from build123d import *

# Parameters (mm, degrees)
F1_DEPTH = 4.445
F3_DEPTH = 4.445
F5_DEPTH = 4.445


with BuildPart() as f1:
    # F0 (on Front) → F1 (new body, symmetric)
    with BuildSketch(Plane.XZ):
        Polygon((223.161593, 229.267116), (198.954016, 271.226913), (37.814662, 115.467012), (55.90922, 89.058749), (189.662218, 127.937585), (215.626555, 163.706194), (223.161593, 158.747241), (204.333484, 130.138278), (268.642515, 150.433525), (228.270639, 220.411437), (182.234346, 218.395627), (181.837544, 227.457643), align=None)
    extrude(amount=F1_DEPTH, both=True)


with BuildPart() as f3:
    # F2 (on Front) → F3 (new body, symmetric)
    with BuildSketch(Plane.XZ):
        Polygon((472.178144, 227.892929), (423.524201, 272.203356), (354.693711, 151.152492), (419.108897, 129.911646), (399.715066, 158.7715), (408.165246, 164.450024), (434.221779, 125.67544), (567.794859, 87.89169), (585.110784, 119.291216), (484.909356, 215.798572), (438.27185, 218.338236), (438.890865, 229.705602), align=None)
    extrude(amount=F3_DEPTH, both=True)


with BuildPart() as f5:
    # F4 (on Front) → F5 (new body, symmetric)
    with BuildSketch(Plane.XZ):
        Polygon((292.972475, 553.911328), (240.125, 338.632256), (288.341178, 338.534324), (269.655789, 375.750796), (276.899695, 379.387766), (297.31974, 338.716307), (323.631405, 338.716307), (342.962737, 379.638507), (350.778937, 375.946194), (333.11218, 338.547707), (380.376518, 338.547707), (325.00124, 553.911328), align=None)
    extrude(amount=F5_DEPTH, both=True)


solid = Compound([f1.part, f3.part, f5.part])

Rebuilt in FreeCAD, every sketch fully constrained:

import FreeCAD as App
import Part
import Sketcher
from FreeCAD import Vector
Q = App.Units.Quantity

doc = App.newDocument("Part")
body = doc.addObject("PartDesign::Body", "Body")

sketch1 = body.newObject("Sketcher::SketchObject", "Sketch")
sketch1.AttachmentSupport = (doc.getObject("XZ_Plane"), [""])
sketch1.MapMode = "FlatFace"
sketch1.addGeometry(Part.LineSegment(Vector(223.161593, 229.267116, 0), Vector(198.954016, 271.226913, 0)), False)
sketch1.addGeometry(Part.LineSegment(Vector(198.954016, 271.226913, 0), Vector(37.814662, 115.467012, 0)), False)
sketch1.addGeometry(Part.LineSegment(Vector(37.814662, 115.467012, 0), Vector(55.90922, 89.058749, 0)), False)
sketch1.addGeometry(Part.LineSegment(Vector(55.90922, 89.058749, 0), Vector(189.662218, 127.937585, 0)), False)
sketch1.addGeometry(Part.LineSegment(Vector(189.662218, 127.937585, 0), Vector(215.626555, 163.706194, 0)), False)
sketch1.addGeometry(Part.LineSegment(Vector(215.626555, 163.706194, 0), Vector(223.161593, 158.747241, 0)), False)
sketch1.addGeometry(Part.LineSegment(Vector(223.161593, 158.747241, 0), Vector(204.333484, 130.138278, 0)), False)
sketch1.addGeometry(Part.LineSegment(Vector(204.333484, 130.138278, 0), Vector(268.642515, 150.433525, 0)), False)
sketch1.addGeometry(Part.LineSegment(Vector(268.642515, 150.433525, 0), Vector(228.270639, 220.411437, 0)), False)
sketch1.addGeometry(Part.LineSegment(Vector(228.270639, 220.411437, 0), Vector(182.234346, 218.395627, 0)), False)
sketch1.addGeometry(Part.LineSegment(Vector(182.234346, 218.395627, 0), Vector(181.837544, 227.457643, 0)), False)
sketch1.addGeometry(Part.LineSegment(Vector(181.837544, 227.457643, 0), Vector(223.161593, 229.267116, 0)), False)
sketch1.addConstraint(Sketcher.Constraint("Coincident", 0, 2, 1, 1))
sketch1.addConstraint(Sketcher.Constraint("Coincident", 1, 2, 2, 1))
sketch1.addConstraint(Sketcher.Constraint("Coincident", 2, 2, 3, 1))
sketch1.addConstraint(Sketcher.Constraint("Coincident", 3, 2, 4, 1))
sketch1.addConstraint(Sketcher.Constraint("Coincident", 4, 2, 5, 1))
sketch1.addConstraint(Sketcher.Constraint("Coincident", 5, 2, 6, 1))
sketch1.addConstraint(Sketcher.Constraint("Coincident", 6, 2, 7, 1))
sketch1.addConstraint(Sketcher.Constraint("Coincident", 7, 2, 8, 1))
sketch1.addConstraint(Sketcher.Constraint("Coincident", 8, 2, 9, 1))
sketch1.addConstraint(Sketcher.Constraint("Coincident", 9, 2, 10, 1))
sketch1.addConstraint(Sketcher.Constraint("Coincident", 10, 2, 11, 1))
sketch1.addConstraint(Sketcher.Constraint("Coincident", 11, 2, 0, 1))
sketch1.addConstraint(Sketcher.Constraint("Perpendicular", 5, 6))
sketch1.addConstraint(Sketcher.Constraint("Parallel", 0, 8))
sketch1.addConstraint(Sketcher.Constraint("Perpendicular", 9, 10))
sketch1.addConstraint(Sketcher.Constraint("Perpendicular", 10, 11))
sketch1.addConstraint(Sketcher.Constraint("Vertical", 5, 2, 11, 2))
sketch1.addConstraint(Sketcher.Constraint("Distance", 10, 9.070699))
sketch1.addConstraint(Sketcher.Constraint("DistanceY", 1, 2, 0, 2, 155.759901))
sketch1.addConstraint(Sketcher.Constraint("DistanceX", 2, 2, 3, 2, 133.752998))
sketch1.addConstraint(Sketcher.Constraint("DistanceX", 0, 2, 7, 2, 69.688499))
sketch1.addConstraint(Sketcher.Constraint("DistanceX", 10, 2, 9, 2, 0.396802))
sketch1.addConstraint(Sketcher.Constraint("DistanceY", 5, 2, 10, 2, 68.710402))
sketch1.addConstraint(Sketcher.Constraint("Distance", 0, 48.442041))
sketch1.addConstraint(Sketcher.Constraint("Distance", 3, 139.28901))
sketch1.addConstraint(Sketcher.Constraint("Distance", 4, 44.198871))
sketch1.addConstraint(Sketcher.Constraint("Distance", 5, 9.020422))
sketch1.addConstraint(Sketcher.Constraint("Distance", 8, 80.788592))
sketch1.addConstraint(Sketcher.Constraint("DistanceX", -1, 1, 1, 2, 37.814662))
sketch1.addConstraint(Sketcher.Constraint("DistanceY", -1, 1, 1, 2, 115.467012))
sketch1.addConstraint(Sketcher.Constraint("DistanceX", -1, 1, 2, 2, 55.90922))
sketch1.addConstraint(Sketcher.Constraint("DistanceY", -1, 1, 2, 2, 89.058749))
sketch1.addConstraint(Sketcher.Constraint("DistanceY", -1, 1, 5, 2, 158.747241))
sketch1.addConstraint(Sketcher.Constraint("DistanceY", -1, 1, 6, 2, 130.138278))
sketch1.addConstraint(Sketcher.Constraint("DistanceX", -1, 1, 8, 2, 228.270639))
sketch1.addConstraint(Sketcher.Constraint("DistanceY", 3, 2, 4, 2, 35.768609))
pad1 = body.newObject("PartDesign::Pad", "Pad")
pad1.Profile = sketch1
pad1.Length = Q("0.35 in")
pad1.Midplane = True
body2 = doc.addObject("PartDesign::Body", "Body001")

sketch2 = body2.newObject("Sketcher::SketchObject", "Sketch001")
sketch2.AttachmentSupport = (doc.getObject("XZ_Plane001"), [""])
sketch2.MapMode = "FlatFace"
sketch2.addGeometry(Part.LineSegment(Vector(472.178144, 227.892929, 0), Vector(423.524201, 272.203356, 0)), False)
sketch2.addGeometry(Part.LineSegment(Vector(423.524201, 272.203356, 0), Vector(354.693711, 151.152492, 0)), False)
sketch2.addGeometry(Part.LineSegment(Vector(354.693711, 151.152492, 0), Vector(419.108897, 129.911646, 0)), False)
sketch2.addGeometry(Part.LineSegment(Vector(419.108897, 129.911646, 0), Vector(399.715066, 158.7715, 0)), False)
sketch2.addGeometry(Part.LineSegment(Vector(399.715066, 158.7715, 0), Vector(408.165246, 164.450024, 0)), False)
sketch2.addGeometry(Part.LineSegment(Vector(408.165246, 164.450024, 0), Vector(434.221779, 125.67544, 0)), False)
sketch2.addGeometry(Part.LineSegment(Vector(434.221779, 125.67544, 0), Vector(567.794859, 87.89169, 0)), False)
sketch2.addGeometry(Part.LineSegment(Vector(567.794859, 87.89169, 0), Vector(585.110784, 119.291216, 0)), False)
sketch2.addGeometry(Part.LineSegment(Vector(585.110784, 119.291216, 0), Vector(484.909356, 215.798572, 0)), False)
sketch2.addGeometry(Part.LineSegment(Vector(484.909356, 215.798572, 0), Vector(438.27185, 218.338236, 0)), False)
sketch2.addGeometry(Part.LineSegment(Vector(438.27185, 218.338236, 0), Vector(438.890865, 229.705602, 0)), False)
sketch2.addGeometry(Part.LineSegment(Vector(438.890865, 229.705602, 0), Vector(472.178144, 227.892929, 0)), False)
sketch2.addConstraint(Sketcher.Constraint("Coincident", 0, 2, 1, 1))
sketch2.addConstraint(Sketcher.Constraint("Coincident", 1, 2, 2, 1))
sketch2.addConstraint(Sketcher.Constraint("Coincident", 2, 2, 3, 1))
sketch2.addConstraint(Sketcher.Constraint("Coincident", 3, 2, 4, 1))
sketch2.addConstraint(Sketcher.Constraint("Coincident", 4, 2, 5, 1))
sketch2.addConstraint(Sketcher.Constraint("Coincident", 5, 2, 6, 1))
sketch2.addConstraint(Sketcher.Constraint("Coincident", 6, 2, 7, 1))
sketch2.addConstraint(Sketcher.Constraint("Coincident", 7, 2, 8, 1))
sketch2.addConstraint(Sketcher.Constraint("Coincident", 8, 2, 9, 1))
sketch2.addConstraint(Sketcher.Constraint("Coincident", 9, 2, 10, 1))
sketch2.addConstraint(Sketcher.Constraint("Coincident", 10, 2, 11, 1))
sketch2.addConstraint(Sketcher.Constraint("Coincident", 11, 2, 0, 1))
sketch2.addConstraint(Sketcher.Constraint("Perpendicular", 3, 4))
sketch2.addConstraint(Sketcher.Constraint("Perpendicular", 4, 5))
sketch2.addConstraint(Sketcher.Constraint("Perpendicular", 9, 10))
sketch2.addConstraint(Sketcher.Constraint("Perpendicular", 10, 11))
sketch2.addConstraint(Sketcher.Constraint("DistanceX", -1, 1, 0, 2, 423.524201))
sketch2.addConstraint(Sketcher.Constraint("DistanceY", -1, 1, 3, 2, 158.7715))
sketch2.addConstraint(Sketcher.Constraint("DistanceY", -1, 1, 10, 2, 229.705602))
sketch2.addConstraint(Sketcher.Constraint("DistanceY", 6, 2, 1, 2, 63.260802))
sketch2.addConstraint(Sketcher.Constraint("DistanceX", 3, 2, 10, 2, 39.175799))
sketch2.addConstraint(Sketcher.Constraint("Distance", 2, 67.82691))
sketch2.addConstraint(Sketcher.Constraint("Distance", 6, 138.81419))
sketch2.addConstraint(Sketcher.Constraint("Distance", 8, 139.11864))
sketch2.addConstraint(Sketcher.Constraint("DistanceX", -1, 1, 1, 2, 354.693711))
sketch2.addConstraint(Sketcher.Constraint("DistanceY", -1, 1, 1, 2, 151.152492))
sketch2.addConstraint(Sketcher.Constraint("DistanceX", -1, 1, 5, 2, 434.221779))
sketch2.addConstraint(Sketcher.Constraint("DistanceY", -1, 1, 5, 2, 125.67544))
sketch2.addConstraint(Sketcher.Constraint("DistanceY", -1, 1, 8, 2, 215.798572))
sketch2.addConstraint(Sketcher.Constraint("DistanceX", -1, 1, 9, 2, 438.27185))
sketch2.addConstraint(Sketcher.Constraint("DistanceY", -1, 1, 11, 2, 227.892929))
sketch2.addConstraint(Sketcher.Constraint("DistanceY", 2, 2, 0, 2, 142.29171))
sketch2.addConstraint(Sketcher.Constraint("DistanceX", 3, 2, 2, 2, 19.393831))
sketch2.addConstraint(Sketcher.Constraint("DistanceX", 3, 2, 4, 2, 8.45018))
sketch2.addConstraint(Sketcher.Constraint("DistanceY", 7, 2, 2, 2, 10.62043))
sketch2.addConstraint(Sketcher.Constraint("DistanceX", 4, 2, 8, 2, 76.74411))
pad2 = body2.newObject("PartDesign::Pad", "Pad001")
pad2.Profile = sketch2
pad2.Length = Q("0.35 in")
pad2.Midplane = True
body3 = doc.addObject("PartDesign::Body", "Body002")

sketch3 = body3.newObject("Sketcher::SketchObject", "Sketch002")
sketch3.AttachmentSupport = (doc.getObject("XZ_Plane002"), [""])
sketch3.MapMode = "FlatFace"
sketch3.addGeometry(Part.LineSegment(Vector(293, 554, 0), Vector(240, 339, 0)), False)
sketch3.addGeometry(Part.LineSegment(Vector(240, 339, 0), Vector(288, 339, 0)), False)
sketch3.addGeometry(Part.LineSegment(Vector(288, 339, 0), Vector(270, 376, 0)), False)
sketch3.addGeometry(Part.LineSegment(Vector(270, 376, 0), Vector(277, 379, 0)), False)
sketch3.addGeometry(Part.LineSegment(Vector(277, 379, 0), Vector(297, 339, 0)), False)
sketch3.addGeometry(Part.LineSegment(Vector(297, 339, 0), Vector(324, 339, 0)), False)
sketch3.addGeometry(Part.LineSegment(Vector(324, 339, 0), Vector(343, 380, 0)), False)
sketch3.addGeometry(Part.LineSegment(Vector(343, 380, 0), Vector(351, 376, 0)), False)
sketch3.addGeometry(Part.LineSegment(Vector(351, 376, 0), Vector(333, 339, 0)), False)
sketch3.addGeometry(Part.LineSegment(Vector(333, 339, 0), Vector(380, 339, 0)), False)
sketch3.addGeometry(Part.LineSegment(Vector(380, 339, 0), Vector(325, 554, 0)), False)
sketch3.addGeometry(Part.LineSegment(Vector(325, 554, 0), Vector(293, 554, 0)), False)
sketch3.addConstraint(Sketcher.Constraint("Coincident", 0, 2, 1, 1))
sketch3.addConstraint(Sketcher.Constraint("Coincident", 1, 2, 2, 1))
sketch3.addConstraint(Sketcher.Constraint("Coincident", 2, 2, 3, 1))
sketch3.addConstraint(Sketcher.Constraint("Coincident", 3, 2, 4, 1))
sketch3.addConstraint(Sketcher.Constraint("Coincident", 4, 2, 5, 1))
sketch3.addConstraint(Sketcher.Constraint("Coincident", 5, 2, 6, 1))
sketch3.addConstraint(Sketcher.Constraint("Coincident", 6, 2, 7, 1))
sketch3.addConstraint(Sketcher.Constraint("Coincident", 7, 2, 8, 1))
sketch3.addConstraint(Sketcher.Constraint("Coincident", 8, 2, 9, 1))
sketch3.addConstraint(Sketcher.Constraint("Coincident", 9, 2, 10, 1))
sketch3.addConstraint(Sketcher.Constraint("Coincident", 10, 2, 11, 1))
sketch3.addConstraint(Sketcher.Constraint("Coincident", 11, 2, 0, 1))
sketch3.addConstraint(Sketcher.Constraint("Horizontal", 5))
sketch3.addConstraint(Sketcher.Constraint("Horizontal", 9))
sketch3.addConstraint(Sketcher.Constraint("Horizontal", 11))
sketch3.addConstraint(Sketcher.Constraint("Perpendicular", 2, 3))
sketch3.addConstraint(Sketcher.Constraint("Perpendicular", 3, 4))
sketch3.addConstraint(Sketcher.Constraint("Perpendicular", 6, 7))
sketch3.addConstraint(Sketcher.Constraint("Perpendicular", 7, 8))
sketch3.addConstraint(Sketcher.Constraint("Angle", 2, Q("116.659996 deg")))
sketch3.addConstraint(Sketcher.Constraint("DistanceX", -1, 1, 0, 2, 240.125))
sketch3.addConstraint(Sketcher.Constraint("DistanceY", 5, 2, 6, 2, 40.9222))
sketch3.addConstraint(Sketcher.Constraint("DistanceX", 6, 2, 7, 2, 7.8162))
sketch3.addConstraint(Sketcher.Constraint("DistanceY", 8, 2, 5, 2, 0.1686))
sketch3.addConstraint(Sketcher.Constraint("Distance", 0, 221.670779))
sketch3.addConstraint(Sketcher.Constraint("Distance", 2, 41.643842))
sketch3.addConstraint(Sketcher.Constraint("Distance", 3, 8.10566))
sketch3.addConstraint(Sketcher.Constraint("Distance", 7, 8.644429))
sketch3.addConstraint(Sketcher.Constraint("Distance", 10, 222.368862))
sketch3.addConstraint(Sketcher.Constraint("DistanceX", 5, 1, 5, 2, 26.311665))
sketch3.addConstraint(Sketcher.Constraint("DistanceX", 9, 1, 9, 2, 47.264338))
sketch3.addConstraint(Sketcher.Constraint("DistanceX", 11, 2, 11, 1, 32.028765))
sketch3.addConstraint(Sketcher.Constraint("DistanceX", -1, 1, 1, 2, 288.341178))
sketch3.addConstraint(Sketcher.Constraint("DistanceX", -1, 1, 4, 2, 297.31974))
sketch3.addConstraint(Sketcher.Constraint("DistanceX", -1, 1, 10, 2, 325.00124))
sketch3.addConstraint(Sketcher.Constraint("DistanceY", -1, 1, 10, 2, 553.911328))
pad3 = body3.newObject("PartDesign::Pad", "Pad002")
pad3.Profile = sketch3
pad3.Length = Q("0.35 in")
pad3.Midplane = True

doc.recompute()
